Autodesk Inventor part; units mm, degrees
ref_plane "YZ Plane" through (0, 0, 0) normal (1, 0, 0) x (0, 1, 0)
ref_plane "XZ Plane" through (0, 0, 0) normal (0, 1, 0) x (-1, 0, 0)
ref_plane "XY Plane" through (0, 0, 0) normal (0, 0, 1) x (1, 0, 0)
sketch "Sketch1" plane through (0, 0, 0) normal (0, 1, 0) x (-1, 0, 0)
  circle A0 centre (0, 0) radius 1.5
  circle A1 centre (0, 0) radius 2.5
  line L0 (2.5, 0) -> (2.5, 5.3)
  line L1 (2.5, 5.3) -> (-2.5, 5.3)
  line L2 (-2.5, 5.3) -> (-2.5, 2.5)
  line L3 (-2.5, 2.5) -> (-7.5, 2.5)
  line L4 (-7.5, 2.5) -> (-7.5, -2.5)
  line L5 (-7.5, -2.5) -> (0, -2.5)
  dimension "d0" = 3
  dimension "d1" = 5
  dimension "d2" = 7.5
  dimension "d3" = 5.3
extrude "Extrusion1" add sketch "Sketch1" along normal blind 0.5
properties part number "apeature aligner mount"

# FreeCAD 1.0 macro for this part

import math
import FreeCAD as App
import Part
import Sketcher
Q = App.Units.Quantity

doc = App.newDocument("Part")
body = doc.addObject("PartDesign::Body", "Body")

# Sketch on XZ plane
sketch1 = body.newObject("Sketcher::SketchObject", "Sketch")
sketch1.AttachmentSupport = (doc.getObject("XZ_Plane"), [""])
sketch1.MapMode = "FlatFace"
sketch1.addGeometry([
    Part.ArcOfCircle(Part.Circle(App.Vector(0, 0, 0), App.Vector(0, 0, 1), 2.5), math.radians(180), math.radians(270)),  # 0
    Part.LineSegment(App.Vector(-2.5, 0, 0), App.Vector(-2.5, 5.3, 0)),  # 1
    Part.LineSegment(App.Vector(-2.5, 5.3, 0), App.Vector(2.5, 5.3, 0)),  # 2
    Part.LineSegment(App.Vector(2.5, 5.3, 0), App.Vector(2.5, 2.5, 0)),  # 3
    Part.LineSegment(App.Vector(2.5, 2.5, 0), App.Vector(7.5, 2.5, 0)),  # 4
    Part.LineSegment(App.Vector(7.5, 2.5, 0), App.Vector(7.5, -2.5, 0)),  # 5
    Part.LineSegment(App.Vector(7.5, -2.5, 0), App.Vector(0, -2.5, 0)),  # 6
    Part.Circle(App.Vector(0, 0, 0), App.Vector(0, 0, 1), 1.5),  # 7
], False)
sketch1.addConstraint([
    Sketcher.Constraint("Tangent", 0, 1, 1, 1),
    Sketcher.Constraint("Coincident", 1, 2, 2, 1),
    Sketcher.Constraint("Coincident", 2, 2, 3, 1),
    Sketcher.Constraint("Coincident", 3, 2, 4, 1),
    Sketcher.Constraint("Coincident", 4, 2, 5, 1),
    Sketcher.Constraint("Coincident", 5, 2, 6, 1),
    Sketcher.Constraint("Tangent", 6, 2, 0, 2),
    Sketcher.Constraint("Vertical", 1),
    Sketcher.Constraint("Horizontal", 2),
    Sketcher.Constraint("Vertical", 3),
    Sketcher.Constraint("Horizontal", 4),
    Sketcher.Constraint("Vertical", 5),
    Sketcher.Constraint("Horizontal", 6),
    Sketcher.Constraint("Coincident", 0, 3, -1, 1),
    Sketcher.Constraint("Coincident", 7, 3, -1, 1),
    Sketcher.Constraint("Equal", 2, 4),
    Sketcher.Constraint("Equal", 4, 5),
    Sketcher.Constraint("Diameter", 7, Q("3 mm")),
    Sketcher.Constraint("Radius", 0, Q("2.5 mm")),
    Sketcher.Constraint("DistanceX", 2, 1, 2, 2, Q("5 mm")),
    Sketcher.Constraint("DistanceY", 1, 1, 1, 2, Q("5.3 mm")),
])
pad1 = body.newObject("PartDesign::Pad", "Pad")
pad1.Profile = sketch1
pad1.Length = 0.5
pad1.Reversed = True

doc.recompute()
